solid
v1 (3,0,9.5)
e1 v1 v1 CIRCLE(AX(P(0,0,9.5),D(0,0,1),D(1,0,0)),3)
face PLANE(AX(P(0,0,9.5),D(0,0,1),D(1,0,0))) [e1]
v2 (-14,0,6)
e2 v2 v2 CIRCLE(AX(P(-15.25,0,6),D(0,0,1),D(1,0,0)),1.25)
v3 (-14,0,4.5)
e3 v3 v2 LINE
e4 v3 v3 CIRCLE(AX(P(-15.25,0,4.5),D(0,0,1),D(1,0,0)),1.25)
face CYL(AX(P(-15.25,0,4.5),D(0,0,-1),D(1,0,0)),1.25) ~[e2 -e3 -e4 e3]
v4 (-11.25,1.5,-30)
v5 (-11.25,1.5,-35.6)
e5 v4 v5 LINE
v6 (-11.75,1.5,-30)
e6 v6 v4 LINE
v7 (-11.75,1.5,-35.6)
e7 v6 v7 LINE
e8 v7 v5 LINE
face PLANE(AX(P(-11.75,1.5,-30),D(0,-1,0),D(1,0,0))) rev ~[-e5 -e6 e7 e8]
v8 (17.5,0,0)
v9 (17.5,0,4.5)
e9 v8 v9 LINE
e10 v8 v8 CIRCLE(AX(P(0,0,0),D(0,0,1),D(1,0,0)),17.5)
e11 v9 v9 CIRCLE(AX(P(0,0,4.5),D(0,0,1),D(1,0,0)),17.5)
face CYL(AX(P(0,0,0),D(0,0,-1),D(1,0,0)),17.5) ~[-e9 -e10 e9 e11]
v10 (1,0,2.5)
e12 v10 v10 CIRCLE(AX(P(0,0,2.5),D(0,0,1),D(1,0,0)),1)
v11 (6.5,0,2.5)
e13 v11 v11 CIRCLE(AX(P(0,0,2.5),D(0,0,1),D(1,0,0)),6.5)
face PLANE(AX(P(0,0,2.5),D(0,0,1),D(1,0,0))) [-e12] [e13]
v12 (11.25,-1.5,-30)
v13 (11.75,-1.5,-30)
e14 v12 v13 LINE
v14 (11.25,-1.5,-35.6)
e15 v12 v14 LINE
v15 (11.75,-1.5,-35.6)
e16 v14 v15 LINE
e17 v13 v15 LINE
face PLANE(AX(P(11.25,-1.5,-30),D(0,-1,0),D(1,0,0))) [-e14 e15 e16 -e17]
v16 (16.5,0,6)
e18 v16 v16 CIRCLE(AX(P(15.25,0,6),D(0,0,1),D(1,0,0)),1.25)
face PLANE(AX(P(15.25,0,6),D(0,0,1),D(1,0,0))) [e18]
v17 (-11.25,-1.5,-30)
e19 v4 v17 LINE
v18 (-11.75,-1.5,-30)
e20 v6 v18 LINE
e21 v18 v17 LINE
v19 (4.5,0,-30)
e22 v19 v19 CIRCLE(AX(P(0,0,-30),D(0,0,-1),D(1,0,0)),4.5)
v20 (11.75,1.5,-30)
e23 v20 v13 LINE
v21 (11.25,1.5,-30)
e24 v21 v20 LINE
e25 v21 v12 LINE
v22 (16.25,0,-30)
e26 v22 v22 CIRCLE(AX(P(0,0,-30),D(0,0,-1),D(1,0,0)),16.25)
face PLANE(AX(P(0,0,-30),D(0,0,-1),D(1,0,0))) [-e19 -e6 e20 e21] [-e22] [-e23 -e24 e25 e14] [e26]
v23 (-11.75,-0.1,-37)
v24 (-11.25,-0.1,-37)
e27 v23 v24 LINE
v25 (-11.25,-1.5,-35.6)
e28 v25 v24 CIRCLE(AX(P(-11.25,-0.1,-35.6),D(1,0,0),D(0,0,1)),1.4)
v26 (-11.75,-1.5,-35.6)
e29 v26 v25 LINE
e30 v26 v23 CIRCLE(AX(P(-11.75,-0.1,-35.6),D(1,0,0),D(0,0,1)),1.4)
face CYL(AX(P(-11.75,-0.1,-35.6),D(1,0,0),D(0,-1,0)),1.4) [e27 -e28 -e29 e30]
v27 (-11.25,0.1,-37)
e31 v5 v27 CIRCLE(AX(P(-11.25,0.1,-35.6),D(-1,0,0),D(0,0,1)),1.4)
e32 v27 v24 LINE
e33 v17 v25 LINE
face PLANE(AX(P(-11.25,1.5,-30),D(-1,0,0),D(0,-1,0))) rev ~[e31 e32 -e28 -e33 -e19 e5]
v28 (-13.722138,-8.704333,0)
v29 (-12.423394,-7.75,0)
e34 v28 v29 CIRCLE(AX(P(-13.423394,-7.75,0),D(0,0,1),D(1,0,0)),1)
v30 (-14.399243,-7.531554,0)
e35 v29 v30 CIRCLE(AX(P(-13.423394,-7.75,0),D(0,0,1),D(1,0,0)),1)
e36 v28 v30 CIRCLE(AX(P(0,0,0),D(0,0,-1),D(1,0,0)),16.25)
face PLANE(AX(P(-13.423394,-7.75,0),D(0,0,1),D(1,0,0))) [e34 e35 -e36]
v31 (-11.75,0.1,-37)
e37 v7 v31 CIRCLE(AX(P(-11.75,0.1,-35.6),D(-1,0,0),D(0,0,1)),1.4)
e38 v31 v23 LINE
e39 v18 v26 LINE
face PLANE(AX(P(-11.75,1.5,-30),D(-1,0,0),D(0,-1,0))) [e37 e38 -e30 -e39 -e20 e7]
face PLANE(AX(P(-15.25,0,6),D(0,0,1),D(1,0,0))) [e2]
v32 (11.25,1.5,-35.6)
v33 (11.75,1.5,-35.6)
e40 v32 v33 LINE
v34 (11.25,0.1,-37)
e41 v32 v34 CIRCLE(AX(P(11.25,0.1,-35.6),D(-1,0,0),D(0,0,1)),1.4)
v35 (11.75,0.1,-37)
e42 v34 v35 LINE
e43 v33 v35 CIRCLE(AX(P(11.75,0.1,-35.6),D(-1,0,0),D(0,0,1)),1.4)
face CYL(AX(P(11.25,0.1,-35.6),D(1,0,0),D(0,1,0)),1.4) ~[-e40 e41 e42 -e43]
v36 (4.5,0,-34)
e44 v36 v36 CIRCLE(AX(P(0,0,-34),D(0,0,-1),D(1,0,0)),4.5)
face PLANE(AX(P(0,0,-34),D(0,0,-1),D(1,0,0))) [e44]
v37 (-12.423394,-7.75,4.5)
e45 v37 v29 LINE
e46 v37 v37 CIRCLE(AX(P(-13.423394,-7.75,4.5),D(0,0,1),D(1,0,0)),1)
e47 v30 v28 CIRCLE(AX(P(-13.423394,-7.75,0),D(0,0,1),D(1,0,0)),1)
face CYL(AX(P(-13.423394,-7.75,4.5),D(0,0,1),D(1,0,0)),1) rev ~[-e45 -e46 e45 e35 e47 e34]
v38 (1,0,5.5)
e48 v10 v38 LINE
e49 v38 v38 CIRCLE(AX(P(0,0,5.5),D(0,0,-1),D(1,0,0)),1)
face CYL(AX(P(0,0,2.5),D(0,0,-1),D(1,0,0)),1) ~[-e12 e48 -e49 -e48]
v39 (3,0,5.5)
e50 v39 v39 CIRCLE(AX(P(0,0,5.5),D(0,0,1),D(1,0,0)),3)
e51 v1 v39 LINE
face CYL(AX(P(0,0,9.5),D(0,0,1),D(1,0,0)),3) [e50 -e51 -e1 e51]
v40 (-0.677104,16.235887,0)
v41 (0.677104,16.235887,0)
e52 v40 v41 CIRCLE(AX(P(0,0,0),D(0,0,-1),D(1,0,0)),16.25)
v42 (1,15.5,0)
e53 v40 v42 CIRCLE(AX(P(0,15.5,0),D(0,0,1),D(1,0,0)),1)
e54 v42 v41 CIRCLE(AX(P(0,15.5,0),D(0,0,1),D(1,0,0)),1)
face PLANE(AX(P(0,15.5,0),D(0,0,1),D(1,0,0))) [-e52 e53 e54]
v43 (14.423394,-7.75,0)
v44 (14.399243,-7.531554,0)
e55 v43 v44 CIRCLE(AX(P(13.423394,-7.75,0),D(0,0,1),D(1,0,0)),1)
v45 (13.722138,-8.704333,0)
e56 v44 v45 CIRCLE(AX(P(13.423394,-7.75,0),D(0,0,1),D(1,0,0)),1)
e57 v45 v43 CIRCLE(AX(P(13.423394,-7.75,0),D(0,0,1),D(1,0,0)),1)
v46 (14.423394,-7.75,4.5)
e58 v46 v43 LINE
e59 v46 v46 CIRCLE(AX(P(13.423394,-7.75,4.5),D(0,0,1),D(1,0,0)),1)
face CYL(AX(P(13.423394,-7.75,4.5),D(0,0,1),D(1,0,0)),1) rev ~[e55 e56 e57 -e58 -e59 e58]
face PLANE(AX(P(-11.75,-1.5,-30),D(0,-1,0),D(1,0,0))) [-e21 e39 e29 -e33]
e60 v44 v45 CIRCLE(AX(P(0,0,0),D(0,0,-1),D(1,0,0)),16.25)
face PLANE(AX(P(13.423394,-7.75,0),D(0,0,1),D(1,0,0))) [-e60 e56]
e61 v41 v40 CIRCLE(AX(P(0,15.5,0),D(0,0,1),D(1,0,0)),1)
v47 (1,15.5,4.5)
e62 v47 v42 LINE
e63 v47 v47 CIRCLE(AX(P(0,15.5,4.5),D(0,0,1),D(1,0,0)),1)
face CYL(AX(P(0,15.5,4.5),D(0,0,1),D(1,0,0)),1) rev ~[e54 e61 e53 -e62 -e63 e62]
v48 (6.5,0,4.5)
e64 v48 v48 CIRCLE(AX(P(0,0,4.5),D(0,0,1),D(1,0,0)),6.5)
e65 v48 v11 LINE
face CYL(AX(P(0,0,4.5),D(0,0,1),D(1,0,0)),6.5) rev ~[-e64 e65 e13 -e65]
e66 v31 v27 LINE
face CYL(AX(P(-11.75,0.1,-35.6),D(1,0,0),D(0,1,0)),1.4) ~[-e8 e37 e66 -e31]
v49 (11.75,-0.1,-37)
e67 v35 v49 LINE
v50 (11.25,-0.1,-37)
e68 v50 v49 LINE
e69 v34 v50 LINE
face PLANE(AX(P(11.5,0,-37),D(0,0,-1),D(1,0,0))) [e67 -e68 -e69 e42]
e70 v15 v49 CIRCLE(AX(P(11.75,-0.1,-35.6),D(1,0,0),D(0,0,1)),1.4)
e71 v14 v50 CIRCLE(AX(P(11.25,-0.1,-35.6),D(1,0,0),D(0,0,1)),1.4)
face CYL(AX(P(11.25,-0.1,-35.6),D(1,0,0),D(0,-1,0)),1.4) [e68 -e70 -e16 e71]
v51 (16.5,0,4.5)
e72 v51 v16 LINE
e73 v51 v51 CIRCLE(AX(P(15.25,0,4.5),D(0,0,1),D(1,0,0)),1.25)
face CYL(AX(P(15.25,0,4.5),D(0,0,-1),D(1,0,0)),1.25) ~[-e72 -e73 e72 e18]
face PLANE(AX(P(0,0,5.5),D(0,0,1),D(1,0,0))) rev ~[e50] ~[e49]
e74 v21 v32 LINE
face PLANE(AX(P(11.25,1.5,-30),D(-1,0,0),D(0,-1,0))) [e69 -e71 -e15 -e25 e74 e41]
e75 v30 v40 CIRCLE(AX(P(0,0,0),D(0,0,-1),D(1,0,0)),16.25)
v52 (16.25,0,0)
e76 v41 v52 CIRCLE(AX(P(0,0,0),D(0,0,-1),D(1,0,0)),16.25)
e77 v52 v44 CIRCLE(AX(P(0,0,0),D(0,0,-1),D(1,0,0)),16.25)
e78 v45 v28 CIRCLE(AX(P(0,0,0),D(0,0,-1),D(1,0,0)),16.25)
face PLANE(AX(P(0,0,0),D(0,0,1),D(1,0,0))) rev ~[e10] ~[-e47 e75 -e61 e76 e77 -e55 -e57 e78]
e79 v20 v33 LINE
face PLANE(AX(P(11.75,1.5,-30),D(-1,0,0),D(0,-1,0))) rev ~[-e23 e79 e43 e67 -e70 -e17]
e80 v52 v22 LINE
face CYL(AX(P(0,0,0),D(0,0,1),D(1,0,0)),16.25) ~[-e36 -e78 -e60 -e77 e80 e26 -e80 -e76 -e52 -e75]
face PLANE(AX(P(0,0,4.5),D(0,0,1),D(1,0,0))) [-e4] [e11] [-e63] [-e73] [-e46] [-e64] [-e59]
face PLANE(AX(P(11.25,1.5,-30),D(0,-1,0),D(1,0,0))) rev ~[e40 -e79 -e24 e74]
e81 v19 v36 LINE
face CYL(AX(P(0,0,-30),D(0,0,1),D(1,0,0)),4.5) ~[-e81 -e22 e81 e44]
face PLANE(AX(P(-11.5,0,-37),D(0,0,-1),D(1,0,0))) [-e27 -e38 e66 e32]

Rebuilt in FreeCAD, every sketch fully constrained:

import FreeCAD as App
import Part
import Sketcher

V = App.Vector
Q = App.Units.Quantity


def edges_at(feature, points):
    """Names of the edges that pass closest to the given points."""
    edges = feature.Shape.Edges
    near = lambda p: min(range(len(edges)), key=lambda i: edges[i].distToShape(Part.Vertex(*p))[0])
    return sorted({f"Edge{near(p) + 1}" for p in points})


def add_polygon(sketch, points):
    """Adds a closed chain of lines whose ends are joined by coincident constraints."""
    first, n = sketch.GeometryCount, len(points)
    for a, b in zip(points, points[1:] + points[:1]):
        sketch.addGeometry(Part.LineSegment(App.Vector(*a, 0), App.Vector(*b, 0)), False)
    for i in range(n):
        sketch.addConstraint(Sketcher.Constraint("Coincident", first + i, 2, first + (i + 1) % n, 1))

doc = App.newDocument("Part")
body = doc.addObject("PartDesign::Body", "Body")

sketch1 = doc.addObject("Sketcher::SketchObject", "Sketch")
body.addObject(sketch1)
sketch1.AttachmentSupport = (doc.XY_Plane, [""])
sketch1.MapMode = "FlatFace"
sketch1.addGeometry(Part.Circle(V(0, 0, 0), V(0, 0, 1), 18), False)
sketch1.addConstraint([
    Sketcher.Constraint("Coincident", 0, 3, -1, 1),
    Sketcher.Constraint("Diameter", 0, Q("35 mm")),
])
pad1 = doc.addObject("PartDesign::Pad", "Pad")
body.addObject(pad1)
pad1.Profile = sketch1
pad1.Length = 4.5

sketch2 = doc.addObject("Sketcher::SketchObject", "Sketch001")
body.addObject(sketch2)
sketch2.AttachmentSupport = (doc.XY_Plane, [""])
sketch2.MapMode = "FlatFace"
sketch2.addGeometry(Part.Circle(V(0, 0, 0), V(0, 0, 1), 16), False)
sketch2.addConstraint([
    Sketcher.Constraint("Coincident", 0, 3, -1, 1),
    Sketcher.Constraint("Diameter", 0, Q("32.5 mm")),
])
pad2 = doc.addObject("PartDesign::Pad", "Pad001")
body.addObject(pad2)
pad2.Profile = sketch2
pad2.Length = 30
pad2.Reversed = True

sketch3 = doc.addObject("Sketcher::SketchObject", "Sketch002")
body.addObject(sketch3)
sketch3.AttachmentSupport = (doc.XY_Plane, [""])
sketch3.MapMode = "FlatFace"
sketch3.AttachmentOffset = App.Placement(V(0, 0, -30), App.Rotation())
sketch3.addGeometry(Part.Circle(V(0, 0, 0), V(0, 0, 1), 4.5), False)
sketch3.addConstraint([
    Sketcher.Constraint("Coincident", 0, 3, -1, 1),
    Sketcher.Constraint("Diameter", 0, Q("9 mm")),
])
pad3 = doc.addObject("PartDesign::Pad", "Pad002")
body.addObject(pad3)
pad3.Profile = sketch3
pad3.Length = 4
pad3.Reversed = True

sketch4 = doc.addObject("Sketcher::SketchObject", "Sketch003")
body.addObject(sketch4)
sketch4.AttachmentSupport = (doc.XY_Plane, [""])
sketch4.MapMode = "FlatFace"
sketch4.AttachmentOffset = App.Placement(V(0, 0, -30), App.Rotation())
add_polygon(sketch4, [(11.2, -1.5), (11.2, 1.5), (11.8, 1.5), (11.8, -1.5)])
add_polygon(sketch4, [(-11.8, -1.5), (-11.8, 1.5), (-11.2, 1.5), (-11.2, -1.5)])
sketch4.addConstraint([
    Sketcher.Constraint("Vertical", 0),
    Sketcher.Constraint("Horizontal", 1),
    Sketcher.Constraint("Vertical", 2),
    Sketcher.Constraint("Horizontal", 3),
    Sketcher.Constraint("Vertical", 4),
    Sketcher.Constraint("Horizontal", 5),
    Sketcher.Constraint("Vertical", 6),
    Sketcher.Constraint("Horizontal", 7),
    Sketcher.Constraint("Symmetric", 2, 2, 4, 2, -1, 1),
    Sketcher.Constraint("Symmetric", 0, 2, 6, 2, -1, 1),
    Sketcher.Constraint("Horizontal", 1, 2, 4, 2),
    Sketcher.Constraint("DistanceY", 0, 1, 0, 2, Q("3 mm")),
    Sketcher.Constraint("DistanceX", 1, 1, 1, 2, Q("0.5 mm")),
    Sketcher.Constraint("DistanceX", 4, 2, 0, 2, Q("23 mm")),
])
pad4 = doc.addObject("PartDesign::Pad", "Pad003")
body.addObject(pad4)
pad4.Profile = sketch4
pad4.Length = 7
pad4.Reversed = True
doc.recompute()

fillet = doc.addObject("PartDesign::Fillet", "Fillet")
body.addObject(fillet)
fillet.Base = (pad4, edges_at(pad4, [
    (11.5, -1.5, -37),
    (11.5, 1.5, -37),
    (-11.5, 1.5, -37),
    (-11.5, -1.5, -37),
]))
fillet.Radius = 1.4

sketch5 = doc.addObject("Sketcher::SketchObject", "Sketch004")
body.addObject(sketch5)
sketch5.AttachmentSupport = (doc.XY_Plane, [""])
sketch5.MapMode = "FlatFace"
sketch5.AttachmentOffset = App.Placement(V(0, 0, 4.5), App.Rotation())
sketch5.addGeometry([
    Part.Circle(V(-15.2, 0, 0), V(0, 0, 1), 1.2),
    Part.Circle(V(15.2, 0, 0), V(0, 0, 1), 1.2),
], False)
sketch5.addConstraint([
    Sketcher.Constraint("Equal", 0, 1),
    Sketcher.Constraint("Symmetric", 0, 3, 1, 3, -1, 1),
    Sketcher.Constraint("PointOnObject", 0, 3, -1),
    Sketcher.Constraint("Diameter", 0, Q("2.5 mm")),
    Sketcher.Constraint("DistanceX", 0, 3, 1, 3, Q("30.5 mm")),
])
pad5 = doc.addObject("PartDesign::Pad", "Pad004")
body.addObject(pad5)
pad5.Profile = sketch5
pad5.Length = 1.5

sketch6 = doc.addObject("Sketcher::SketchObject", "Sketch005")
body.addObject(sketch6)
sketch6.AttachmentSupport = (doc.XY_Plane, [""])
sketch6.MapMode = "FlatFace"
sketch6.AttachmentOffset = App.Placement(V(0, 0, 4.5), App.Rotation())
sketch6.addGeometry([
    Part.Circle(V(0, 15.5, 0), V(0, 0, 1), 1),
    Part.Circle(V(-13.4, -7.8, 0), V(0, 0, 1), 1),
    Part.Circle(V(13.4, -7.8, 0), V(0, 0, 1), 1),
], False)
sketch6.addConstraint([
    Sketcher.Constraint("Equal", 0, 1),
    Sketcher.Constraint("Equal", 1, 2),
    Sketcher.Constraint("Symmetric", 1, 3, 2, 3, -2),
    Sketcher.Constraint("PointOnObject", 0, 3, -2),
    Sketcher.Constraint("Diameter", 0, Q("2 mm")),
    Sketcher.Constraint("DistanceY", -1, 1, 0, 3, Q("15.5 mm")),
    Sketcher.Constraint("DistanceY", 1, 3, -1, 1, Q("7.75 mm")),
    Sketcher.Constraint("DistanceX", 1, 3, 2, 3, Q("26.846788 mm")),
])
pocket1 = doc.addObject("PartDesign::Pocket", "Pocket")
body.addObject(pocket1)
pocket1.Profile = sketch6
pocket1.Length = 4.5

sketch7 = doc.addObject("Sketcher::SketchObject", "Sketch006")
body.addObject(sketch7)
sketch7.AttachmentSupport = (doc.XY_Plane, [""])
sketch7.MapMode = "FlatFace"
sketch7.AttachmentOffset = App.Placement(V(0, 0, 4.5), App.Rotation())
sketch7.addGeometry(Part.Circle(V(0, 0, 0), V(0, 0, 1), 6), False)
sketch7.addConstraint([
    Sketcher.Constraint("Coincident", 0, 3, -1, 1),
    Sketcher.Constraint("Diameter", 0, Q("13 mm")),
])
pocket2 = doc.addObject("PartDesign::Pocket", "Pocket001")
body.addObject(pocket2)
pocket2.Profile = sketch7
pocket2.Length = 2

sketch8 = doc.addObject("Sketcher::SketchObject", "Sketch007")
body.addObject(sketch8)
sketch8.AttachmentSupport = (doc.XY_Plane, [""])
sketch8.MapMode = "FlatFace"
sketch8.AttachmentOffset = App.Placement(V(0, 0, 2.5), App.Rotation())
sketch8.addGeometry(Part.Circle(V(0, 0, 0), V(0, 0, 1), 1), False)
sketch8.addConstraint([
    Sketcher.Constraint("Coincident", 0, 3, -1, 1),
    Sketcher.Constraint("Diameter", 0, Q("2 mm")),
])
pad6 = doc.addObject("PartDesign::Pad", "Pad005")
body.addObject(pad6)
pad6.Profile = sketch8
pad6.Length = 7

sketch9 = doc.addObject("Sketcher::SketchObject", "Sketch008")
body.addObject(sketch9)
sketch9.AttachmentSupport = (doc.XY_Plane, [""])
sketch9.MapMode = "FlatFace"
sketch9.AttachmentOffset = App.Placement(V(0, 0, 9.5), App.Rotation())
sketch9.addGeometry(Part.Circle(V(0, 0, 0), V(0, 0, 1), 3), False)
sketch9.addConstraint([
    Sketcher.Constraint("Coincident", 0, 3, -1, 1),
    Sketcher.Constraint("Diameter", 0, Q("6 mm")),
])
pad7 = doc.addObject("PartDesign::Pad", "Pad006")
body.addObject(pad7)
pad7.Profile = sketch9
pad7.Length = 4
pad7.Reversed = True

doc.recompute()
